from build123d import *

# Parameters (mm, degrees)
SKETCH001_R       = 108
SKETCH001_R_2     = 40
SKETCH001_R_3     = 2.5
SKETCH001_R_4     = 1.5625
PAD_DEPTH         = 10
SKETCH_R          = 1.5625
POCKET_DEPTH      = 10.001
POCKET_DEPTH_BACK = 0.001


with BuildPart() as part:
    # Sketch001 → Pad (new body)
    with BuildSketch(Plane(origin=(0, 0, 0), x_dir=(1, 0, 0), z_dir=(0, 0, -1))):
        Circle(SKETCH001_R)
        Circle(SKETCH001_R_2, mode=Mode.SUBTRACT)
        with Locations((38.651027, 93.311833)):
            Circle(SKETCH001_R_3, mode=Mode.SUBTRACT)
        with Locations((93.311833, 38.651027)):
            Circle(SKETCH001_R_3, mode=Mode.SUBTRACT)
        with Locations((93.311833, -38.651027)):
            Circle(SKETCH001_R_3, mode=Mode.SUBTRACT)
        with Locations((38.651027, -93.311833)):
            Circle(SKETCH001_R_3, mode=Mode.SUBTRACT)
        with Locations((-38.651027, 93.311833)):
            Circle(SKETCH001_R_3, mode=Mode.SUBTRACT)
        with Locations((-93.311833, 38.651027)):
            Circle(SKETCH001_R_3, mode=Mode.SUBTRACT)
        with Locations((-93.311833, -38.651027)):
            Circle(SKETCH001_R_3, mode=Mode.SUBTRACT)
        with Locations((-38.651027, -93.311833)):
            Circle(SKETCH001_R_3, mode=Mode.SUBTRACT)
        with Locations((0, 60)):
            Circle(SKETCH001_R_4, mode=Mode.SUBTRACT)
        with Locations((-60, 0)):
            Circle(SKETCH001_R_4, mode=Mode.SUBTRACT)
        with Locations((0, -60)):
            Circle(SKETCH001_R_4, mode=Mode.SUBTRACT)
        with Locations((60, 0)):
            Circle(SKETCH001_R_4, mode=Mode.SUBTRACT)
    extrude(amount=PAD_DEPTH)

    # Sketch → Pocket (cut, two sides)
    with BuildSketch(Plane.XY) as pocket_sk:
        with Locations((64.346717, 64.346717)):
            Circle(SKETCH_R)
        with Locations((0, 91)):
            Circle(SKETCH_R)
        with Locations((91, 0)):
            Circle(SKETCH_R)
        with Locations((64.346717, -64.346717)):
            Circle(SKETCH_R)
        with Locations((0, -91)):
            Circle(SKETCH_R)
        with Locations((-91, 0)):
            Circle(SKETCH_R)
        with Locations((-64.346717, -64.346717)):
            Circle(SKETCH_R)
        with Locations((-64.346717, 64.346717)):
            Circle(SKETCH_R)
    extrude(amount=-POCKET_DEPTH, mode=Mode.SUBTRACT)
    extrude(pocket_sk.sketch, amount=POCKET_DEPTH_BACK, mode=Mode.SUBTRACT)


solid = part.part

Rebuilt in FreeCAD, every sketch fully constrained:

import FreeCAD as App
import Part
import Sketcher

V = App.Vector

doc = App.newDocument("Part")
body = doc.addObject("PartDesign::Body", "Body")

# Sketch on XY plane
sketch1 = doc.addObject("Sketcher::SketchObject", "Sketch")
body.addObject(sketch1)
sketch1.AttachmentSupport = (doc.XY_Plane, [""])
sketch1.MapMode = "FlatFace"
sketch1.addGeometry([
    Part.Circle(V(0, 0, 0), V(0, 0, 1), 108),  # 0
    Part.Circle(V(-38.651027, 93.311833, 0), V(0, 0, 1), 2.5),  # 1
    Part.Circle(V(0, 60, 0), V(0, 0, 1), 1.5625),  # 2
    Part.Circle(V(-93.311833, 38.651027, 0), V(0, 0, 1), 2.5),  # 3
    Part.Circle(V(-60, 0, 0), V(0, 0, 1), 1.5625),  # 4
    Part.Circle(V(38.651027, 93.311833, 0), V(0, 0, 1), 2.5),  # 5
    Part.Circle(V(93.311833, 38.651027, 0), V(0, 0, 1), 2.5),  # 6
    Part.Circle(V(60, 0, 0), V(0, 0, 1), 1.5625),  # 7
    Part.Circle(V(-93.311833, -38.651027, 0), V(0, 0, 1), 2.5),  # 8
    Part.Circle(V(0, 0, 0), V(0, 0, 1), 40),  # 9
    Part.Circle(V(0, -60, 0), V(0, 0, 1), 1.5625),  # 10
    Part.Circle(V(-38.651027, -93.311833, 0), V(0, 0, 1), 2.5),  # 11
    Part.Circle(V(93.311833, -38.651027, 0), V(0, 0, 1), 2.5),  # 12
    Part.Circle(V(38.651027, -93.311833, 0), V(0, 0, 1), 2.5),  # 13
], False)
sketch1.addConstraint([
    Sketcher.Constraint("Coincident", 0, 3, -1, 1),
    Sketcher.Constraint("Coincident", 9, 3, -1, 1),
    Sketcher.Constraint("Equal", 1, 3),
    Sketcher.Constraint("Equal", 2, 4),
    Sketcher.Constraint("Equal", 3, 5),
    Sketcher.Constraint("Equal", 5, 6),
    Sketcher.Constraint("Equal", 4, 7),
    Sketcher.Constraint("Equal", 6, 8),
    Sketcher.Constraint("Equal", 7, 10),
    Sketcher.Constraint("Equal", 8, 11),
    Sketcher.Constraint("Equal", 11, 12),
    Sketcher.Constraint("Equal", 12, 13),
    Sketcher.Constraint("Symmetric", 4, 3, 7, 3, -1, 1),
    Sketcher.Constraint("Symmetric", 6, 3, 8, 3, -1, 1),
    Sketcher.Constraint("Symmetric", 2, 3, 10, 3, -1, 1),
    Sketcher.Constraint("Symmetric", 5, 3, 11, 3, -1, 1),
    Sketcher.Constraint("Symmetric", 3, 3, 12, 3, -1, 1),
    Sketcher.Constraint("Symmetric", 1, 3, 13, 3, -1, 1),
    Sketcher.Constraint("Symmetric", 1, 3, 5, 3, -2),
    Sketcher.Constraint("Symmetric", 3, 3, 6, 3, -2),
    Sketcher.Constraint("PointOnObject", 2, 3, -2),
    Sketcher.Constraint("PointOnObject", 4, 3, -1),
    Sketcher.Constraint("Diameter", 0, 216.0),
    Sketcher.Constraint("Diameter", 1, 5.0),
    Sketcher.Constraint("Diameter", 9, 80.0),
    Sketcher.Constraint("Diameter", 2, 3.125),
    Sketcher.Constraint("DistanceY", -1, 1, 2, 3, 60.0),
    Sketcher.Constraint("DistanceX", 4, 3, -1, 1, 60.0),
    Sketcher.Constraint("DistanceX", 3, 3, 5, 3, 131.96286),
    Sketcher.Constraint("DistanceY", 8, 3, 1, 3, 131.96286),
    Sketcher.Constraint("DistanceX", 1, 3, -1, 1, 38.651027),
    Sketcher.Constraint("DistanceY", -1, 1, 1, 3, 93.311833),
])
pad1 = doc.addObject("PartDesign::Pad", "Pad")
body.addObject(pad1)
pad1.Profile = sketch1
pad1.Length = 10
pad1.Reversed = True

# Sketch on XY plane
sketch2 = doc.addObject("Sketcher::SketchObject", "Sketch001")
body.addObject(sketch2)
sketch2.AttachmentSupport = (doc.XY_Plane, [""])
sketch2.MapMode = "FlatFace"
sketch2.addGeometry([
    Part.Circle(V(64.346717, 64.346717, 0), V(0, 0, 1), 1.5625),  # 0
    Part.Circle(V(0, 91, 0), V(0, 0, 1), 1.5625),  # 1
    Part.Circle(V(91, 0, 0), V(0, 0, 1), 1.5625),  # 2
    Part.Circle(V(64.346717, -64.346717, 0), V(0, 0, 1), 1.5625),  # 3
    Part.Circle(V(0, -91, 0), V(0, 0, 1), 1.5625),  # 4
    Part.Circle(V(-91, 0, 0), V(0, 0, 1), 1.5625),  # 5
    Part.Circle(V(-64.346717, -64.346717, 0), V(0, 0, 1), 1.5625),  # 6
    Part.Circle(V(-64.346717, 64.346717, 0), V(0, 0, 1), 1.5625),  # 7
], False)
sketch2.addConstraint([
    Sketcher.Constraint("Equal", 0, 1),
    Sketcher.Constraint("Equal", 1, 2),
    Sketcher.Constraint("Equal", 2, 3),
    Sketcher.Constraint("Equal", 3, 4),
    Sketcher.Constraint("Equal", 4, 5),
    Sketcher.Constraint("Equal", 5, 6),
    Sketcher.Constraint("Equal", 6, 7),
    Sketcher.Constraint("Symmetric", 1, 3, 4, 3, -1, 1),
    Sketcher.Constraint("Symmetric", 2, 3, 5, 3, -1, 1),
    Sketcher.Constraint("Symmetric", 0, 3, 6, 3, -1, 1),
    Sketcher.Constraint("Symmetric", 3, 3, 7, 3, -1, 1),
    Sketcher.Constraint("Symmetric", 3, 3, 6, 3, -2),
    Sketcher.Constraint("PointOnObject", 1, 3, -2),
    Sketcher.Constraint("PointOnObject", 2, 3, -1),
    Sketcher.Constraint("Diameter", 0, 3.125),
    Sketcher.Constraint("DistanceY", -1, 1, 1, 3, 91.0),
    Sketcher.Constraint("DistanceX", -1, 1, 2, 3, 91.0),
    Sketcher.Constraint("DistanceX", -1, 1, 0, 3, 64.346717),
    Sketcher.Constraint("DistanceY", -1, 1, 0, 3, 64.346717),
])
pocket1 = doc.addObject("PartDesign::Pocket", "Pocket")
body.addObject(pocket1)
pocket1.Profile = sketch2
pocket1.Type = "ThroughAll"
pocket1.Midplane = True

doc.recompute()
